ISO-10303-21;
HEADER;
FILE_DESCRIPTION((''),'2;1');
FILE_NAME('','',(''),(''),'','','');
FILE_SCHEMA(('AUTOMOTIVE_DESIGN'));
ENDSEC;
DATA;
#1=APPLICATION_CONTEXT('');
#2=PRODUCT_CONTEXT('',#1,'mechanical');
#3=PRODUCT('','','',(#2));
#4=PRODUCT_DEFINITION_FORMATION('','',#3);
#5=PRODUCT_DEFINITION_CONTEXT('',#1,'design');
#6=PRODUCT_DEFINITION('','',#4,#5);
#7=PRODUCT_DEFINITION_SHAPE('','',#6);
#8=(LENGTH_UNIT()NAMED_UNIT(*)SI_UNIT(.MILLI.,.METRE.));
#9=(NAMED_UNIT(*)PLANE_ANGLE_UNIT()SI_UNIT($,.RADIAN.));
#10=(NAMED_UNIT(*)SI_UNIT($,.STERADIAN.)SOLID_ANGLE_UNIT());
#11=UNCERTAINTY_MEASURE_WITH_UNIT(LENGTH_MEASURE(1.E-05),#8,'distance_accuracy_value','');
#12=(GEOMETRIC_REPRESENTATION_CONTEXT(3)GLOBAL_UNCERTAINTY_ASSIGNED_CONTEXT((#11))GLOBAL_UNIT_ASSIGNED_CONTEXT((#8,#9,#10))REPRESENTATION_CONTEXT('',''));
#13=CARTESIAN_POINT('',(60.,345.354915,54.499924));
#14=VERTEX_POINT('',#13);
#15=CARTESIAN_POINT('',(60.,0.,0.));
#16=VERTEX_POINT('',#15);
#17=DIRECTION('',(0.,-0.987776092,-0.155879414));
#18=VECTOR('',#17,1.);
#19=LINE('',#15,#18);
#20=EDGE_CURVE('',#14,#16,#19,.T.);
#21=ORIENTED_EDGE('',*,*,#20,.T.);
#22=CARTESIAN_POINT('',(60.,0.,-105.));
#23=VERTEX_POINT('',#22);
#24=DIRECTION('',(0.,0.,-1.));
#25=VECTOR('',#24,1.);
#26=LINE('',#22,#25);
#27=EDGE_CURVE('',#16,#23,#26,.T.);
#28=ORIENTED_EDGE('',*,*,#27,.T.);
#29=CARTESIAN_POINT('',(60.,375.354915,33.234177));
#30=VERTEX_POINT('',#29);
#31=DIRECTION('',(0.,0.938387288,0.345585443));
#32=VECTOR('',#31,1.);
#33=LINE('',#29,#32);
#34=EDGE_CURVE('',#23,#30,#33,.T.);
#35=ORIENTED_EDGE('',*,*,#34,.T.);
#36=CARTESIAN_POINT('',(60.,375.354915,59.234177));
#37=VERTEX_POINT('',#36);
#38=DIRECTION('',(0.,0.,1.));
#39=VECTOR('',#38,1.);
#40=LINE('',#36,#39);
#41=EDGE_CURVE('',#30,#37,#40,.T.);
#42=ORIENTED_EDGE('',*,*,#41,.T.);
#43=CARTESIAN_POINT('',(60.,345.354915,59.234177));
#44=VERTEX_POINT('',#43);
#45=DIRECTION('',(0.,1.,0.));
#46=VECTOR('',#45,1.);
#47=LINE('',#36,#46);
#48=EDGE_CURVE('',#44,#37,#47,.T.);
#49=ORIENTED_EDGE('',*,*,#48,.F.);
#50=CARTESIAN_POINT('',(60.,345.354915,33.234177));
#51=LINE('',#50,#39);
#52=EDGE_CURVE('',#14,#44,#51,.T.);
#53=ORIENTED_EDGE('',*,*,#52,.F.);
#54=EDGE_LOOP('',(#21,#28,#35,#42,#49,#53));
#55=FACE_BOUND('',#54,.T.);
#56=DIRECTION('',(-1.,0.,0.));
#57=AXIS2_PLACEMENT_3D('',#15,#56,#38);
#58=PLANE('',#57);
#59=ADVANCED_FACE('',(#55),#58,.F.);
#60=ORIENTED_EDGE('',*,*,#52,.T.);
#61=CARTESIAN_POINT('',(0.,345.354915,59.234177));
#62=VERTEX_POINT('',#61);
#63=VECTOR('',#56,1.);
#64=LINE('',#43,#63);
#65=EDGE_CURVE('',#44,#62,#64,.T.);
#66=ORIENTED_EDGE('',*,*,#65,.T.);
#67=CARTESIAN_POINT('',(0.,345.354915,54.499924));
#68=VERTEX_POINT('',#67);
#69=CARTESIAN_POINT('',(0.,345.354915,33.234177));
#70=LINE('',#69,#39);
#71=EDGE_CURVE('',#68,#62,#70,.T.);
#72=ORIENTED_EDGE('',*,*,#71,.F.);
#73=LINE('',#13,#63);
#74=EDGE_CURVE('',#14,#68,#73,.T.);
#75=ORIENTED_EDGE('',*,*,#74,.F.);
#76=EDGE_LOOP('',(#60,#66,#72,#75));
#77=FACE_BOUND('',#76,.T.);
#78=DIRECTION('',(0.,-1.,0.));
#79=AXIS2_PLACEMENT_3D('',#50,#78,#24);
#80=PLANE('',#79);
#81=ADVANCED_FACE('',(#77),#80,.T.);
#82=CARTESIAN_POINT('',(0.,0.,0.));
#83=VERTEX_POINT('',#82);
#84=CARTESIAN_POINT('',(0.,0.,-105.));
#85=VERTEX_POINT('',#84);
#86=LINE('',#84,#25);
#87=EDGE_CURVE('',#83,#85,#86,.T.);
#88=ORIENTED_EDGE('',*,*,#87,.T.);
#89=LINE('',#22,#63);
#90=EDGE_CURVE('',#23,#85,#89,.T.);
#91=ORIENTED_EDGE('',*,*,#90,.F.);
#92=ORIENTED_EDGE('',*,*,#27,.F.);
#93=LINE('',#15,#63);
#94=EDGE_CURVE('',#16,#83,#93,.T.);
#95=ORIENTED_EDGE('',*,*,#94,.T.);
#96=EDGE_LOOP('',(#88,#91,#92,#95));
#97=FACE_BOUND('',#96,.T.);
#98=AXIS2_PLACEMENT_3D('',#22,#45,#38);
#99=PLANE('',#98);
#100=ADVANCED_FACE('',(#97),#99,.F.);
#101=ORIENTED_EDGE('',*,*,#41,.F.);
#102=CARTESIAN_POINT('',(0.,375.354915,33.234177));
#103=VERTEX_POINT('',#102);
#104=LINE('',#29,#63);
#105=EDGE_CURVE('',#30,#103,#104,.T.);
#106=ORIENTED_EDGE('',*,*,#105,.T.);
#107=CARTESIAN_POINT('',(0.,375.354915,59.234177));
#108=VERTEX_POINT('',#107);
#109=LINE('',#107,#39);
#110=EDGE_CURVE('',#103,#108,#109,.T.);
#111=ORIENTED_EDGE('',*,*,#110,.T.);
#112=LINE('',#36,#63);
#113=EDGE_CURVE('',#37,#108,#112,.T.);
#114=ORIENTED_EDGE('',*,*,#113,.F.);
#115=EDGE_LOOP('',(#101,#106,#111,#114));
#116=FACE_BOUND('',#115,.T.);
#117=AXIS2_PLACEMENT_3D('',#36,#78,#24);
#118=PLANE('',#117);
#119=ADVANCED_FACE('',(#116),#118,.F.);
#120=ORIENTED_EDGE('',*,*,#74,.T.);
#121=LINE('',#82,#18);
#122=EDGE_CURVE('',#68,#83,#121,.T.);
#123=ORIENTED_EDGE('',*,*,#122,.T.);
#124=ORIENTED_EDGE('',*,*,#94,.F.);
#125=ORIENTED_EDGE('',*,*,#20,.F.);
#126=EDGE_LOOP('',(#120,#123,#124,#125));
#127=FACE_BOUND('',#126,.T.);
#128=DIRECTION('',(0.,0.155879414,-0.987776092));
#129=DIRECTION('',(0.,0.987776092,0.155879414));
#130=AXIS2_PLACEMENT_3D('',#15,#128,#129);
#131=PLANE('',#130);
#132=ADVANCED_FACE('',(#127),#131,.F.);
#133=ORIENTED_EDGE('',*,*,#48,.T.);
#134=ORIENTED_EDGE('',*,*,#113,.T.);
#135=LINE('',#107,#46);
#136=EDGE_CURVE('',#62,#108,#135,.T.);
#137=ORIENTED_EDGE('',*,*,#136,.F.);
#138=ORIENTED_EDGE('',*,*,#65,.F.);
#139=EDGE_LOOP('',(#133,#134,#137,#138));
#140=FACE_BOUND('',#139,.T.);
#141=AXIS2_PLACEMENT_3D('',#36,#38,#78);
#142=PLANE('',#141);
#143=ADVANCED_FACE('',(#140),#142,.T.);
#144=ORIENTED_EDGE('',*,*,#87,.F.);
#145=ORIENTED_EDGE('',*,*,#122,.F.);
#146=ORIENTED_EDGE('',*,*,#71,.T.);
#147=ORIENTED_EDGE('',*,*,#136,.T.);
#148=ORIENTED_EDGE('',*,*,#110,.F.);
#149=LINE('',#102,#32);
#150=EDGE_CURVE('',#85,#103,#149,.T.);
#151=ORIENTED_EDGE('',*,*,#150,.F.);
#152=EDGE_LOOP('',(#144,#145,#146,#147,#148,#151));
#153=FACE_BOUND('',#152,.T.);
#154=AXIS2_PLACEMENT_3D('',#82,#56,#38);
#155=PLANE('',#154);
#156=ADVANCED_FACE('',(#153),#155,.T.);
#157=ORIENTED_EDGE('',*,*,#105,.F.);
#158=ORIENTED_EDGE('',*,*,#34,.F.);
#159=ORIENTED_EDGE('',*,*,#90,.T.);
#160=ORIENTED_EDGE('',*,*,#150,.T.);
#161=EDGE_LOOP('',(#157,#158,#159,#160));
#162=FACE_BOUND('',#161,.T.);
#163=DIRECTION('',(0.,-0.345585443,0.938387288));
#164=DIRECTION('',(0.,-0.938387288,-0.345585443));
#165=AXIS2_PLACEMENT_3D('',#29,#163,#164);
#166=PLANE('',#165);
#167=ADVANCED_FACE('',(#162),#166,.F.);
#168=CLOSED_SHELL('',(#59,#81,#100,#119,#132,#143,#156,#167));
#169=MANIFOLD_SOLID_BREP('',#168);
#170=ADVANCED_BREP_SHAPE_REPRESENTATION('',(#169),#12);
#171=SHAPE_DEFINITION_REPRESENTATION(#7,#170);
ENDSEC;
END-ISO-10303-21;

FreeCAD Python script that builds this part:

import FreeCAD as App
import Part
import Sketcher
from FreeCAD import Vector

doc = App.newDocument("Part")
body = doc.addObject("PartDesign::Body", "Body")

# Sketch on YZ plane
sketch1 = body.newObject("Sketcher::SketchObject", "Sketch")
sketch1.AttachmentSupport = (doc.getObject("YZ_Plane"), [""])
sketch1.MapMode = "FlatFace"
sketch1.addGeometry([
    Part.LineSegment(Vector(375, 59, 0), Vector(0, 0, 0)),
    Part.LineSegment(Vector(0, 0, 0), Vector(0, -105, 0)),
    Part.LineSegment(Vector(0, -105, 0), Vector(375, 33, 0)),
    Part.LineSegment(Vector(375, 33, 0), Vector(375, 59, 0)),
], False)
sketch1.addConstraint([
    Sketcher.Constraint("Coincident", 0, 2, 1, 1),
    Sketcher.Constraint("Coincident", 1, 2, 2, 1),
    Sketcher.Constraint("Coincident", 2, 2, 3, 1),
    Sketcher.Constraint("Coincident", 3, 2, 0, 1),
    Sketcher.Constraint("Vertical", 1),
    Sketcher.Constraint("Vertical", 3),
    Sketcher.Constraint("Coincident", 0, 2, -1, 1),
    Sketcher.Constraint("DistanceY", 1, 2, 1, 1, 105.0),
    Sketcher.Constraint("DistanceY", 3, 1, 3, 2, 26.0),
    Sketcher.Constraint("Distance", 0, 380.0),
    Sketcher.Constraint("Distance", 2, 400.0),
])
pad1 = body.newObject("PartDesign::Pad", "Pad")
pad1.Profile = sketch1
pad1.Length = 60

# Sketch on YZ plane
sketch2 = body.newObject("Sketcher::SketchObject", "Sketch001")
sketch2.AttachmentSupport = (doc.getObject("YZ_Plane"), [""])
sketch2.MapMode = "FlatFace"
sketch2.addGeometry([
    Part.LineSegment(Vector(375, 33, 0), Vector(345, 33, 0)),
    Part.LineSegment(Vector(345, 33, 0), Vector(345, 59, 0)),
    Part.LineSegment(Vector(345, 59, 0), Vector(375, 59, 0)),
    Part.LineSegment(Vector(375, 59, 0), Vector(375, 33, 0)),
], False)
sketch2.addConstraint([
    Sketcher.Constraint("Coincident", 0, 2, 1, 1),
    Sketcher.Constraint("Coincident", 1, 2, 2, 1),
    Sketcher.Constraint("Coincident", 2, 2, 3, 1),
    Sketcher.Constraint("Coincident", 3, 2, 0, 1),
    Sketcher.Constraint("Horizontal", 0),
    Sketcher.Constraint("Vertical", 1),
    Sketcher.Constraint("Horizontal", 2),
    Sketcher.Constraint("Vertical", 3),
    Sketcher.Constraint("DistanceX", 0, 2, 0, 1, 30.0),
    Sketcher.Constraint("DistanceY", 1, 1, 1, 2, 26.0),
    Sketcher.Constraint("DistanceX", -1, 1, 0, 2, 345.354915),
    Sketcher.Constraint("DistanceY", -1, 1, 0, 2, 33.234177),
])
pad2 = body.newObject("PartDesign::Pad", "Pad001")
pad2.Profile = sketch2
pad2.Length = 60

doc.recompute()
